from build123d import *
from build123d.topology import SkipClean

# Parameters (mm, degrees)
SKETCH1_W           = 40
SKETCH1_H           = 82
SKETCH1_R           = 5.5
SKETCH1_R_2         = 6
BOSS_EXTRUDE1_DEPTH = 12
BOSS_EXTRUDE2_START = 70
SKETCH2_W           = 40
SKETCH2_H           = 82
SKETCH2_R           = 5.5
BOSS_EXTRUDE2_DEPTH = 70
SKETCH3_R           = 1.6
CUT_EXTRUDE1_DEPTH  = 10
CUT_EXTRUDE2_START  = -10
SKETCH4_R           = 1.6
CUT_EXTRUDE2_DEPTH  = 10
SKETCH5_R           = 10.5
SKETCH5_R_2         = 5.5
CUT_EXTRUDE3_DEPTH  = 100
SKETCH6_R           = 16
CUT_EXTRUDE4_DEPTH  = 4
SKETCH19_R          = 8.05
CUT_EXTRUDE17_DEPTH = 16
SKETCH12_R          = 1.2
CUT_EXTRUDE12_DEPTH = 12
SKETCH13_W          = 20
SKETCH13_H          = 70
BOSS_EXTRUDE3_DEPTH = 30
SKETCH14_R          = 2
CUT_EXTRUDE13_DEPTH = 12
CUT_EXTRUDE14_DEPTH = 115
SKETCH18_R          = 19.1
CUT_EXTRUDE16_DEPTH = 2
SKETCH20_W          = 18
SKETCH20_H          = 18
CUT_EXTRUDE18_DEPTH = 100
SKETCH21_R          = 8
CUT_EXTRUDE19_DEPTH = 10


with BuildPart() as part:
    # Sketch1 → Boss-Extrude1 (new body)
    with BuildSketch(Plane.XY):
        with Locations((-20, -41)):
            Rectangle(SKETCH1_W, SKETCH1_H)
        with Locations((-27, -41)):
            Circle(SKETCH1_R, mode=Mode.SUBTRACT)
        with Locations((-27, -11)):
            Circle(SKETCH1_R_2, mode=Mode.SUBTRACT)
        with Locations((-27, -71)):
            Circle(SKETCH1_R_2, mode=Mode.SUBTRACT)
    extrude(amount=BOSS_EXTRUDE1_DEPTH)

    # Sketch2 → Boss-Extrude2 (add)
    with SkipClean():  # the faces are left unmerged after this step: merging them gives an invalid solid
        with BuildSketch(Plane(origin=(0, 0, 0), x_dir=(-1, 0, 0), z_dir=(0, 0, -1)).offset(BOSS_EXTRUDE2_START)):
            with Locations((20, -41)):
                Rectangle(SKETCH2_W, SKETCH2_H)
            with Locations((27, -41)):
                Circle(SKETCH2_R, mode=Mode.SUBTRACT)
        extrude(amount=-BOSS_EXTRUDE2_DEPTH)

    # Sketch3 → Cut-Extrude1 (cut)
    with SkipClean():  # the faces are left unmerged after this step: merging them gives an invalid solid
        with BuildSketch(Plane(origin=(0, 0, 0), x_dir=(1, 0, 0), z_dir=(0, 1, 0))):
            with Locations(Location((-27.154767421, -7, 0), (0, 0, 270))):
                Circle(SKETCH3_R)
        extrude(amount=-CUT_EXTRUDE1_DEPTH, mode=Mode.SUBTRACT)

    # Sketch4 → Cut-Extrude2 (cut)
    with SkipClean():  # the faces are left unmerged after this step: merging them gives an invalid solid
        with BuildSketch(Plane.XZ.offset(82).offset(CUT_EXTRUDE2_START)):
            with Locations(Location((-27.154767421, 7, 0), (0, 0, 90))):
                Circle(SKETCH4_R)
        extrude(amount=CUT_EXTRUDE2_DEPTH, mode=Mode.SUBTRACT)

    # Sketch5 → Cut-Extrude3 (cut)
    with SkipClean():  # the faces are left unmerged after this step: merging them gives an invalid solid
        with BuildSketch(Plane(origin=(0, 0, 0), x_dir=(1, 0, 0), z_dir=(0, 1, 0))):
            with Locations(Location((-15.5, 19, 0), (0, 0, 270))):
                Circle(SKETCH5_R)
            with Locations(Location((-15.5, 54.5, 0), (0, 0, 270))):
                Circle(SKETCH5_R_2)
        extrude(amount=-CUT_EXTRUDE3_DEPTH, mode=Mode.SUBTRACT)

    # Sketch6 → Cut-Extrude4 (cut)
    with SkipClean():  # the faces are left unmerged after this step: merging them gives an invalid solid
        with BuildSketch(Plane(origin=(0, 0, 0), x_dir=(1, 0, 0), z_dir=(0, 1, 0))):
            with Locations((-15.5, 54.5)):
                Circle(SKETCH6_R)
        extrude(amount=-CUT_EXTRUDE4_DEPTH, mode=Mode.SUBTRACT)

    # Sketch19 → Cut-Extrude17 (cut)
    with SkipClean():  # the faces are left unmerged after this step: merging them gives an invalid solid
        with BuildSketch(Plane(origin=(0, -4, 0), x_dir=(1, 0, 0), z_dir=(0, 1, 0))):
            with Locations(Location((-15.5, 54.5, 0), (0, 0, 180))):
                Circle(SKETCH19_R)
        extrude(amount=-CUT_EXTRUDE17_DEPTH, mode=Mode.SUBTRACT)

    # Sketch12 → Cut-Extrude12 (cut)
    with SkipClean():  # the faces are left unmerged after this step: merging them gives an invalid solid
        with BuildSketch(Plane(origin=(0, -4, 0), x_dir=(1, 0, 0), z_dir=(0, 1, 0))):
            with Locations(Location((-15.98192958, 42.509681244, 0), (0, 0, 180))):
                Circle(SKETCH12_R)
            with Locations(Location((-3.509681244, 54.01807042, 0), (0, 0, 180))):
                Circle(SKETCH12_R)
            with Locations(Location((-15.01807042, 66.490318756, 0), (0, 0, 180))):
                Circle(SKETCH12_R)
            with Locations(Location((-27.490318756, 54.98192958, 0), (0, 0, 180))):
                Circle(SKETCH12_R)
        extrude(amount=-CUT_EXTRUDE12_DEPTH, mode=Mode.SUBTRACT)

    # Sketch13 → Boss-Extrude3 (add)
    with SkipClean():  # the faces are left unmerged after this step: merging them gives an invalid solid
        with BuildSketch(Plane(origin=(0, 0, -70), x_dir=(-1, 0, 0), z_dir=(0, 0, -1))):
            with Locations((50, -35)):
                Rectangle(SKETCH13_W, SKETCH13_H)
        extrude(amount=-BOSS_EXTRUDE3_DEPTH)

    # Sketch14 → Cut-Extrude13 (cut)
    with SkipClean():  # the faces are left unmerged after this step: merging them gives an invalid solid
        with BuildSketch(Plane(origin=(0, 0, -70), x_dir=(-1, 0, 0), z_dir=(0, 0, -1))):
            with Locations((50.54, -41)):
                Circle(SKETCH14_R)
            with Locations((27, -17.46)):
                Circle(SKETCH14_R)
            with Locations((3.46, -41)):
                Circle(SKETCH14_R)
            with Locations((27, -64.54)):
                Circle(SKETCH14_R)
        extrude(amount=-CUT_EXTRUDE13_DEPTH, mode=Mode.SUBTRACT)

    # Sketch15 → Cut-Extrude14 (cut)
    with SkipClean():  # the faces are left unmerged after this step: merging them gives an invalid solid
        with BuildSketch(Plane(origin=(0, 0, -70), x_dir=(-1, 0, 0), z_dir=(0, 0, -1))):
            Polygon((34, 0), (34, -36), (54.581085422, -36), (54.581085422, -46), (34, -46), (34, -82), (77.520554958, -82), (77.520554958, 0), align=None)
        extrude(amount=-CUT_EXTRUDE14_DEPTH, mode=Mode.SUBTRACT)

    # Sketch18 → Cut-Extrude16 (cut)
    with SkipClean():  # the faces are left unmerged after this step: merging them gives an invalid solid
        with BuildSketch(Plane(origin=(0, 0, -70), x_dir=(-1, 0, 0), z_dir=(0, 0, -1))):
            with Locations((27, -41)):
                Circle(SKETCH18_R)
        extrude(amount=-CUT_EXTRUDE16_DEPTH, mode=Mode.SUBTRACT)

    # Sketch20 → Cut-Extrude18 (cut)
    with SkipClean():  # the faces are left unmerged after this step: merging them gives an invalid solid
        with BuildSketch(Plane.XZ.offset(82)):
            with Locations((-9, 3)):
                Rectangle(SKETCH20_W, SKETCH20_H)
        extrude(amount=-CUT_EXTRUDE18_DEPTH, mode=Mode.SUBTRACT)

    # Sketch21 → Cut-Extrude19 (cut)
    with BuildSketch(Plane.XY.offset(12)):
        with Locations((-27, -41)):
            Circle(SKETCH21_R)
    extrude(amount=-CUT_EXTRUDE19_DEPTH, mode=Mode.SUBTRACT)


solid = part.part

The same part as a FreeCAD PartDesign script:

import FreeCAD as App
import Part
import Sketcher

V = App.Vector

doc = App.newDocument("Part")
body = doc.addObject("PartDesign::Body", "Body")

# Sketch on XY plane
sketch1 = doc.addObject("Sketcher::SketchObject", "Sketch")
body.addObject(sketch1)
sketch1.AttachmentSupport = (doc.XY_Plane, [""])
sketch1.MapMode = "FlatFace"
sketch1.addGeometry(Part.LineSegment(V(-40, 0, 0), V(-40, -82, 0)), False)
sketch1.addGeometry(Part.LineSegment(V(-40, -82, 0), V(0, -82, 0)), False)
sketch1.addGeometry(Part.LineSegment(V(0, -82, 0), V(0, 0, 0)), False)
sketch1.addGeometry(Part.LineSegment(V(0, 0, 0), V(-40, 0, 0)), False)
sketch1.addGeometry(Part.Circle(V(-27, -71, 0), V(0, 0, 1), 6), False)
sketch1.addGeometry(Part.Circle(V(-27, -41, 0), V(0, 0, 1), 6), False)
sketch1.addGeometry(Part.Circle(V(-27, -11, 0), V(0, 0, 1), 6), False)
sketch1.addConstraint(Sketcher.Constraint("Coincident", 0, 2, 1, 1))
sketch1.addConstraint(Sketcher.Constraint("Coincident", 1, 2, 2, 1))
sketch1.addConstraint(Sketcher.Constraint("Coincident", 2, 2, 3, 1))
sketch1.addConstraint(Sketcher.Constraint("Coincident", 3, 2, 0, 1))
sketch1.addConstraint(Sketcher.Constraint("Vertical", 0))
sketch1.addConstraint(Sketcher.Constraint("Horizontal", 1))
sketch1.addConstraint(Sketcher.Constraint("Vertical", 2))
sketch1.addConstraint(Sketcher.Constraint("Horizontal", 3))
sketch1.addConstraint(Sketcher.Constraint("Coincident", 2, 2, -1, 1))
sketch1.addConstraint(Sketcher.Constraint("Equal", 4, 6))
sketch1.addConstraint(Sketcher.Constraint("Vertical", 4, 3, 5, 3))
sketch1.addConstraint(Sketcher.Constraint("Vertical", 5, 3, 6, 3))
sketch1.addConstraint(Sketcher.Constraint("Diameter", 4, 12.0))
sketch1.addConstraint(Sketcher.Constraint("Diameter", 5, 11.0))
sketch1.addConstraint(Sketcher.Constraint("DistanceX", 1, 1, 1, 2, 40.0))
sketch1.addConstraint(Sketcher.Constraint("DistanceY", 0, 2, 0, 1, 82.0))
sketch1.addConstraint(Sketcher.Constraint("DistanceX", 4, 3, -1, 1, 27.0))
sketch1.addConstraint(Sketcher.Constraint("DistanceY", 4, 3, -1, 1, 71.0))
sketch1.addConstraint(Sketcher.Constraint("DistanceY", 5, 3, -1, 1, 41.0))
sketch1.addConstraint(Sketcher.Constraint("DistanceY", 6, 3, -1, 1, 11.0))
pad1 = doc.addObject("PartDesign::Pad", "Pad")
body.addObject(pad1)
pad1.Profile = sketch1
pad1.Length = 12

# Sketch on XY plane
sketch2 = doc.addObject("Sketcher::SketchObject", "Sketch001")
body.addObject(sketch2)
sketch2.AttachmentSupport = (doc.XY_Plane, [""])
sketch2.MapMode = "FlatFace"
sketch2.AttachmentOffset = App.Placement(V(0, 0, -70), App.Rotation())
sketch2.addGeometry(Part.LineSegment(V(0, 0, 0), V(0, -82, 0)), False)
sketch2.addGeometry(Part.LineSegment(V(0, -82, 0), V(-40, -82, 0)), False)
sketch2.addGeometry(Part.LineSegment(V(-40, -82, 0), V(-40, 0, 0)), False)
sketch2.addGeometry(Part.LineSegment(V(-40, 0, 0), V(0, 0, 0)), False)
sketch2.addGeometry(Part.Circle(V(-27, -41, 0), V(0, 0, 1), 6), False)
sketch2.addConstraint(Sketcher.Constraint("Coincident", 0, 2, 1, 1))
sketch2.addConstraint(Sketcher.Constraint("Coincident", 1, 2, 2, 1))
sketch2.addConstraint(Sketcher.Constraint("Coincident", 2, 2, 3, 1))
sketch2.addConstraint(Sketcher.Constraint("Coincident", 3, 2, 0, 1))
sketch2.addConstraint(Sketcher.Constraint("Vertical", 0))
sketch2.addConstraint(Sketcher.Constraint("Horizontal", 1))
sketch2.addConstraint(Sketcher.Constraint("Vertical", 2))
sketch2.addConstraint(Sketcher.Constraint("Horizontal", 3))
sketch2.addConstraint(Sketcher.Constraint("Coincident", 3, 2, -1, 1))
sketch2.addConstraint(Sketcher.Constraint("Diameter", 4, 11.0))
sketch2.addConstraint(Sketcher.Constraint("DistanceX", 1, 2, 1, 1, 40.0))
sketch2.addConstraint(Sketcher.Constraint("DistanceY", 0, 2, 0, 1, 82.0))
sketch2.addConstraint(Sketcher.Constraint("DistanceX", 4, 3, -1, 1, 27.0))
sketch2.addConstraint(Sketcher.Constraint("DistanceY", 4, 3, -1, 1, 41.0))
pad2 = doc.addObject("PartDesign::Pad", "Pad001")
body.addObject(pad2)
pad2.Profile = sketch2
pad2.Length = 70

# Sketch on XZ plane
sketch3 = doc.addObject("Sketcher::SketchObject", "Sketch002")
body.addObject(sketch3)
sketch3.AttachmentSupport = (doc.XZ_Plane, [""])
sketch3.MapMode = "FlatFace"
sketch3.addGeometry(Part.Circle(V(-27.2, 7, 0), V(0, 0, 1), 1.6), False)
sketch3.addConstraint(Sketcher.Constraint("Diameter", 0, 3.2))
sketch3.addConstraint(Sketcher.Constraint("DistanceY", -1, 1, 0, 3, 7.0))
sketch3.addConstraint(Sketcher.Constraint("DistanceX", 0, 3, -1, 1, 27.154767))
pocket1 = doc.addObject("PartDesign::Pocket", "Pocket")
body.addObject(pocket1)
pocket1.Profile = sketch3
pocket1.Length = 10
pocket1.Reversed = True

# Sketch on XZ plane
sketch4 = doc.addObject("Sketcher::SketchObject", "Sketch003")
body.addObject(sketch4)
sketch4.AttachmentSupport = (doc.XZ_Plane, [""])
sketch4.MapMode = "FlatFace"
sketch4.AttachmentOffset = App.Placement(V(0, 0, 72), App.Rotation())
sketch4.addGeometry(Part.Circle(V(-27.2, 7, 0), V(0, 0, 1), 1.6), False)
sketch4.addConstraint(Sketcher.Constraint("Diameter", 0, 3.2))
sketch4.addConstraint(Sketcher.Constraint("DistanceY", -1, 1, 0, 3, 7.0))
sketch4.addConstraint(Sketcher.Constraint("DistanceX", 0, 3, -1, 1, 27.154767))
pocket2 = doc.addObject("PartDesign::Pocket", "Pocket001")
body.addObject(pocket2)
pocket2.Profile = sketch4
pocket2.Length = 10
pocket2.Reversed = True

# Sketch on XZ plane
sketch5 = doc.addObject("Sketcher::SketchObject", "Sketch004")
body.addObject(sketch5)
sketch5.AttachmentSupport = (doc.XZ_Plane, [""])
sketch5.MapMode = "FlatFace"
sketch5.addGeometry(Part.Circle(V(-16, -19, 0), V(0, 0, 1), 10), False)
sketch5.addGeometry(Part.Circle(V(-16, -54, 0), V(0, 0, 1), 6), False)
sketch5.addConstraint(Sketcher.Constraint("Vertical", 0, 3, 1, 3))
sketch5.addConstraint(Sketcher.Constraint("Diameter", 0, 21.0))
sketch5.addConstraint(Sketcher.Constraint("Diameter", 1, 11.0))
sketch5.addConstraint(Sketcher.Constraint("DistanceY", 0, 3, -1, 1, 19.0))
sketch5.addConstraint(Sketcher.Constraint("DistanceX", 0, 3, -1, 1, 15.5))
sketch5.addConstraint(Sketcher.Constraint("DistanceY", 1, 3, -1, 1, 54.5))
pocket3 = doc.addObject("PartDesign::Pocket", "Pocket002")
body.addObject(pocket3)
pocket3.Profile = sketch5
pocket3.Length = 100
pocket3.Reversed = True

# Sketch on XZ plane
sketch6 = doc.addObject("Sketcher::SketchObject", "Sketch005")
body.addObject(sketch6)
sketch6.AttachmentSupport = (doc.XZ_Plane, [""])
sketch6.MapMode = "FlatFace"
sketch6.addGeometry(Part.Circle(V(-16, -54, 0), V(0, 0, 1), 16), False)
sketch6.addConstraint(Sketcher.Constraint("Diameter", 0, 32.0))
sketch6.addConstraint(Sketcher.Constraint("DistanceX", 0, 3, -1, 1, 15.5))
sketch6.addConstraint(Sketcher.Constraint("DistanceY", 0, 3, -1, 1, 54.5))
pocket4 = doc.addObject("PartDesign::Pocket", "Pocket003")
body.addObject(pocket4)
pocket4.Profile = sketch6
pocket4.Length = 4
pocket4.Reversed = True

# Sketch on XZ plane
sketch7 = doc.addObject("Sketcher::SketchObject", "Sketch006")
body.addObject(sketch7)
sketch7.AttachmentSupport = (doc.XZ_Plane, [""])
sketch7.MapMode = "FlatFace"
sketch7.AttachmentOffset = App.Placement(V(0, 0, 4), App.Rotation())
sketch7.addGeometry(Part.Circle(V(-16, -54, 0), V(0, 0, 1), 8), False)
sketch7.addConstraint(Sketcher.Constraint("Diameter", 0, 16.1))
sketch7.addConstraint(Sketcher.Constraint("DistanceX", 0, 3, -1, 1, 15.5))
sketch7.addConstraint(Sketcher.Constraint("DistanceY", 0, 3, -1, 1, 54.5))
pocket5 = doc.addObject("PartDesign::Pocket", "Pocket004")
body.addObject(pocket5)
pocket5.Profile = sketch7
pocket5.Length = 16
pocket5.Reversed = True

# Sketch on XZ plane
sketch8 = doc.addObject("Sketcher::SketchObject", "Sketch007")
body.addObject(sketch8)
sketch8.AttachmentSupport = (doc.XZ_Plane, [""])
sketch8.MapMode = "FlatFace"
sketch8.AttachmentOffset = App.Placement(V(0, 0, 4), App.Rotation())
sketch8.addGeometry(Part.Circle(V(-16, -42.5, 0), V(0, 0, 1), 1.2), False)
sketch8.addGeometry(Part.Circle(V(-3.5, -54, 0), V(0, 0, 1), 1.2), False)
sketch8.addGeometry(Part.Circle(V(-15, -66.5, 0), V(0, 0, 1), 1.2), False)
sketch8.addGeometry(Part.Circle(V(-27.5, -55, 0), V(0, 0, 1), 1.2), False)
sketch8.addConstraint(Sketcher.Constraint("Equal", 0, 1))
sketch8.addConstraint(Sketcher.Constraint("Equal", 1, 2))
sketch8.addConstraint(Sketcher.Constraint("Equal", 2, 3))
sketch8.addConstraint(Sketcher.Constraint("Diameter", 0, 2.4))
sketch8.addConstraint(Sketcher.Constraint("DistanceX", 0, 3, -1, 1, 15.98193))
sketch8.addConstraint(Sketcher.Constraint("DistanceY", 0, 3, -1, 1, 42.509681))
sketch8.addConstraint(Sketcher.Constraint("DistanceX", 1, 3, -1, 1, 3.509681))
sketch8.addConstraint(Sketcher.Constraint("DistanceY", 1, 3, -1, 1, 54.01807))
sketch8.addConstraint(Sketcher.Constraint("DistanceX", 2, 3, -1, 1, 15.01807))
sketch8.addConstraint(Sketcher.Constraint("DistanceY", 2, 3, -1, 1, 66.490319))
sketch8.addConstraint(Sketcher.Constraint("DistanceX", 3, 3, -1, 1, 27.490319))
sketch8.addConstraint(Sketcher.Constraint("DistanceY", 3, 3, -1, 1, 54.98193))
pocket6 = doc.addObject("PartDesign::Pocket", "Pocket005")
body.addObject(pocket6)
pocket6.Profile = sketch8
pocket6.Length = 12
pocket6.Reversed = True

# Sketch on XY plane
sketch9 = doc.addObject("Sketcher::SketchObject", "Sketch008")
body.addObject(sketch9)
sketch9.AttachmentSupport = (doc.XY_Plane, [""])
sketch9.MapMode = "FlatFace"
sketch9.AttachmentOffset = App.Placement(V(0, 0, -70), App.Rotation())
sketch9.addGeometry(Part.LineSegment(V(-40, 0, 0), V(-40, -70, 0)), False)
sketch9.addGeometry(Part.LineSegment(V(-40, -70, 0), V(-60, -70, 0)), False)
sketch9.addGeometry(Part.LineSegment(V(-60, -70, 0), V(-60, 0, 0)), False)
sketch9.addGeometry(Part.LineSegment(V(-60, 0, 0), V(-40, 0, 0)), False)
sketch9.addConstraint(Sketcher.Constraint("Coincident", 0, 2, 1, 1))
sketch9.addConstraint(Sketcher.Constraint("Coincident", 1, 2, 2, 1))
sketch9.addConstraint(Sketcher.Constraint("Coincident", 2, 2, 3, 1))
sketch9.addConstraint(Sketcher.Constraint("Coincident", 3, 2, 0, 1))
sketch9.addConstraint(Sketcher.Constraint("Vertical", 0))
sketch9.addConstraint(Sketcher.Constraint("Horizontal", 1))
sketch9.addConstraint(Sketcher.Constraint("Vertical", 2))
sketch9.addConstraint(Sketcher.Constraint("Horizontal", 3))
sketch9.addConstraint(Sketcher.Constraint("PointOnObject", 2, 2, -1))
sketch9.addConstraint(Sketcher.Constraint("DistanceX", 1, 2, 1, 1, 20.0))
sketch9.addConstraint(Sketcher.Constraint("DistanceY", 0, 2, 0, 1, 70.0))
sketch9.addConstraint(Sketcher.Constraint("DistanceX", 0, 2, -1, 1, 40.0))
pad3 = doc.addObject("PartDesign::Pad", "Pad002")
body.addObject(pad3)
pad3.Profile = sketch9
pad3.Length = 30

# Sketch on XY plane
sketch10 = doc.addObject("Sketcher::SketchObject", "Sketch009")
body.addObject(sketch10)
sketch10.AttachmentSupport = (doc.XY_Plane, [""])
sketch10.MapMode = "FlatFace"
sketch10.AttachmentOffset = App.Placement(V(0, 0, -70), App.Rotation())
sketch10.addGeometry(Part.Circle(V(-50.5, -41, 0), V(0, 0, 1), 2), False)
sketch10.addGeometry(Part.Circle(V(-27, -17.5, 0), V(0, 0, 1), 2), False)
sketch10.addGeometry(Part.Circle(V(-3.5, -41, 0), V(0, 0, 1), 2), False)
sketch10.addGeometry(Part.Circle(V(-27, -64.5, 0), V(0, 0, 1), 2), False)
sketch10.addConstraint(Sketcher.Constraint("Equal", 0, 1))
sketch10.addConstraint(Sketcher.Constraint("Equal", 1, 2))
sketch10.addConstraint(Sketcher.Constraint("Equal", 2, 3))
sketch10.addConstraint(Sketcher.Constraint("Horizontal", 0, 3, 2, 3))
sketch10.addConstraint(Sketcher.Constraint("Vertical", 1, 3, 3, 3))
sketch10.addConstraint(Sketcher.Constraint("Diameter", 0, 4.0))
sketch10.addConstraint(Sketcher.Constraint("DistanceY", 0, 3, -1, 1, 41.0))
sketch10.addConstraint(Sketcher.Constraint("DistanceX", 1, 3, -1, 1, 27.0))
sketch10.addConstraint(Sketcher.Constraint("DistanceX", 0, 3, -1, 1, 50.54))
sketch10.addConstraint(Sketcher.Constraint("DistanceY", 1, 3, -1, 1, 17.46))
sketch10.addConstraint(Sketcher.Constraint("DistanceX", 2, 3, -1, 1, 3.46))
sketch10.addConstraint(Sketcher.Constraint("DistanceY", 3, 3, -1, 1, 64.54))
pocket7 = doc.addObject("PartDesign::Pocket", "Pocket006")
body.addObject(pocket7)
pocket7.Profile = sketch10
pocket7.Length = 12
pocket7.Reversed = True

# Sketch on XY plane
sketch11 = doc.addObject("Sketcher::SketchObject", "Sketch010")
body.addObject(sketch11)
sketch11.AttachmentSupport = (doc.XY_Plane, [""])
sketch11.MapMode = "FlatFace"
sketch11.AttachmentOffset = App.Placement(V(0, 0, -70), App.Rotation())
sketch11.addGeometry(Part.LineSegment(V(-34, 0, 0), V(-34, -36, 0)), False)
sketch11.addGeometry(Part.LineSegment(V(-34, -36, 0), V(-55, -36, 0)), False)
sketch11.addGeometry(Part.LineSegment(V(-55, -36, 0), V(-55, -46, 0)), False)
sketch11.addGeometry(Part.LineSegment(V(-55, -46, 0), V(-34, -46, 0)), False)
sketch11.addGeometry(Part.LineSegment(V(-34, -46, 0), V(-34, -82, 0)), False)
sketch11.addGeometry(Part.LineSegment(V(-34, -82, 0), V(-78, -82, 0)), False)
sketch11.addGeometry(Part.LineSegment(V(-78, -82, 0), V(-78, 0, 0)), False)
sketch11.addGeometry(Part.LineSegment(V(-78, 0, 0), V(-34, 0, 0)), False)
sketch11.addConstraint(Sketcher.Constraint("Coincident", 0, 2, 1, 1))
sketch11.addConstraint(Sketcher.Constraint("Coincident", 1, 2, 2, 1))
sketch11.addConstraint(Sketcher.Constraint("Coincident", 2, 2, 3, 1))
sketch11.addConstraint(Sketcher.Constraint("Coincident", 3, 2, 4, 1))
sketch11.addConstraint(Sketcher.Constraint("Coincident", 4, 2, 5, 1))
sketch11.addConstraint(Sketcher.Constraint("Coincident", 5, 2, 6, 1))
sketch11.addConstraint(Sketcher.Constraint("Coincident", 6, 2, 7, 1))
sketch11.addConstraint(Sketcher.Constraint("Coincident", 7, 2, 0, 1))
sketch11.addConstraint(Sketcher.Constraint("Vertical", 0))
sketch11.addConstraint(Sketcher.Constraint("Horizontal", 1))
sketch11.addConstraint(Sketcher.Constraint("Vertical", 2))
sketch11.addConstraint(Sketcher.Constraint("Horizontal", 3))
sketch11.addConstraint(Sketcher.Constraint("Vertical", 4))
sketch11.addConstraint(Sketcher.Constraint("Horizontal", 5))
sketch11.addConstraint(Sketcher.Constraint("Vertical", 6))
sketch11.addConstraint(Sketcher.Constraint("Horizontal", 7))
sketch11.addConstraint(Sketcher.Constraint("PointOnObject", 6, 2, -1))
sketch11.addConstraint(Sketcher.Constraint("Vertical", 0, 2, 3, 2))
sketch11.addConstraint(Sketcher.Constraint("Equal", 0, 4))
sketch11.addConstraint(Sketcher.Constraint("DistanceY", 0, 2, 0, 1, 36.0))
sketch11.addConstraint(Sketcher.Constraint("DistanceY", 2, 2, 2, 1, 10.0))
sketch11.addConstraint(Sketcher.Constraint("DistanceX", 0, 2, -1, 1, 34.0))
sketch11.addConstraint(Sketcher.Constraint("DistanceX", 1, 2, 1, 1, 20.581085))
sketch11.addConstraint(Sketcher.Constraint("DistanceX", 5, 2, 5, 1, 43.520555))
pocket8 = doc.addObject("PartDesign::Pocket", "Pocket007")
body.addObject(pocket8)
pocket8.Profile = sketch11
pocket8.Length = 115
pocket8.Reversed = True

# Sketch on XY plane
sketch12 = doc.addObject("Sketcher::SketchObject", "Sketch011")
body.addObject(sketch12)
sketch12.AttachmentSupport = (doc.XY_Plane, [""])
sketch12.MapMode = "FlatFace"
sketch12.AttachmentOffset = App.Placement(V(0, 0, -70), App.Rotation())
sketch12.addGeometry(Part.Circle(V(-27, -41, 0), V(0, 0, 1), 19), False)
sketch12.addConstraint(Sketcher.Constraint("Diameter", 0, 38.2))
sketch12.addConstraint(Sketcher.Constraint("DistanceX", 0, 3, -1, 1, 27.0))
sketch12.addConstraint(Sketcher.Constraint("DistanceY", 0, 3, -1, 1, 41.0))
pocket9 = doc.addObject("PartDesign::Pocket", "Pocket008")
body.addObject(pocket9)
pocket9.Profile = sketch12
pocket9.Length = 2
pocket9.Reversed = True

# Sketch on XZ plane
sketch13 = doc.addObject("Sketcher::SketchObject", "Sketch012")
body.addObject(sketch13)
sketch13.AttachmentSupport = (doc.XZ_Plane, [""])
sketch13.MapMode = "FlatFace"
sketch13.AttachmentOffset = App.Placement(V(0, 0, 82), App.Rotation())
sketch13.addGeometry(Part.LineSegment(V(-18, 12, 0), V(-18, -6, 0)), False)
sketch13.addGeometry(Part.LineSegment(V(-18, -6, 0), V(0, -6, 0)), False)
sketch13.addGeometry(Part.LineSegment(V(0, -6, 0), V(0, 12, 0)), False)
sketch13.addGeometry(Part.LineSegment(V(0, 12, 0), V(-18, 12, 0)), False)
sketch13.addConstraint(Sketcher.Constraint("Coincident", 0, 2, 1, 1))
sketch13.addConstraint(Sketcher.Constraint("Coincident", 1, 2, 2, 1))
sketch13.addConstraint(Sketcher.Constraint("Coincident", 2, 2, 3, 1))
sketch13.addConstraint(Sketcher.Constraint("Coincident", 3, 2, 0, 1))
sketch13.addConstraint(Sketcher.Constraint("Vertical", 0))
sketch13.addConstraint(Sketcher.Constraint("Horizontal", 1))
sketch13.addConstraint(Sketcher.Constraint("Vertical", 2))
sketch13.addConstraint(Sketcher.Constraint("Horizontal", 3))
sketch13.addConstraint(Sketcher.Constraint("PointOnObject", 1, 2, -2))
sketch13.addConstraint(Sketcher.Constraint("Equal", 3, 0))
sketch13.addConstraint(Sketcher.Constraint("DistanceX", 1, 1, 1, 2, 18.0))
sketch13.addConstraint(Sketcher.Constraint("DistanceY", 0, 2, -1, 1, 6.0))
pocket10 = doc.addObject("PartDesign::Pocket", "Pocket009")
body.addObject(pocket10)
pocket10.Profile = sketch13
pocket10.Length = 100

# Sketch on XY plane
sketch14 = doc.addObject("Sketcher::SketchObject", "Sketch013")
body.addObject(sketch14)
sketch14.AttachmentSupport = (doc.XY_Plane, [""])
sketch14.MapMode = "FlatFace"
sketch14.AttachmentOffset = App.Placement(V(0, 0, 12), App.Rotation())
sketch14.addGeometry(Part.Circle(V(-27, -41, 0), V(0, 0, 1), 8), False)
sketch14.addConstraint(Sketcher.Constraint("Diameter", 0, 16.0))
sketch14.addConstraint(Sketcher.Constraint("DistanceX", 0, 3, -1, 1, 27.0))
sketch14.addConstraint(Sketcher.Constraint("DistanceY", 0, 3, -1, 1, 41.0))
pocket11 = doc.addObject("PartDesign::Pocket", "Pocket010")
body.addObject(pocket11)
pocket11.Profile = sketch14
pocket11.Length = 10

doc.recompute()
